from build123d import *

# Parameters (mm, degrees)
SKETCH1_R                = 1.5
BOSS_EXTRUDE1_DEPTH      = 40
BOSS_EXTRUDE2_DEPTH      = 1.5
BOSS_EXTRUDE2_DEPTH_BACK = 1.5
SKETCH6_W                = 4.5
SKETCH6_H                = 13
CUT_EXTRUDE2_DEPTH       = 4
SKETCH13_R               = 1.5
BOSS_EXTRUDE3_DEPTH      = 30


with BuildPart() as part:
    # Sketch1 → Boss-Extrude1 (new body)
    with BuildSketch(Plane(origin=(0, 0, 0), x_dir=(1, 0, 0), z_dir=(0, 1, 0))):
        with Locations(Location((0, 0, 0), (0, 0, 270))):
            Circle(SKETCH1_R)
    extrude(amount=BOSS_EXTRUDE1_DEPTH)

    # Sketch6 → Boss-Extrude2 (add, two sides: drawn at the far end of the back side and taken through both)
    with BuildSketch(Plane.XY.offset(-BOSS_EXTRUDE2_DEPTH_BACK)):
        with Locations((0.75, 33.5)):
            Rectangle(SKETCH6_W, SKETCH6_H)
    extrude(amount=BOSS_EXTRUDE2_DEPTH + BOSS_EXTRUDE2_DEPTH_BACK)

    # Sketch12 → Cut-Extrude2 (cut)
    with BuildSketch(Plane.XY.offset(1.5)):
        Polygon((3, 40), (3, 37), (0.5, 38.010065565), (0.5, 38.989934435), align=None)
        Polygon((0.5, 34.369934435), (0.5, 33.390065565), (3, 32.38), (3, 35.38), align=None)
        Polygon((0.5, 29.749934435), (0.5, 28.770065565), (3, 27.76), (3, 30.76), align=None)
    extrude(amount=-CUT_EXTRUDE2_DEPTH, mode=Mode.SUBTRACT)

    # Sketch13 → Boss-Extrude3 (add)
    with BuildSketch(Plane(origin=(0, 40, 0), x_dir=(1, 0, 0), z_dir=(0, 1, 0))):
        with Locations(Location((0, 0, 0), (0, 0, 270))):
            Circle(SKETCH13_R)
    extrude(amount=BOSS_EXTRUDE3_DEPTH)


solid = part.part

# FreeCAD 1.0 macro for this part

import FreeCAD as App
import Part
import Sketcher

V = App.Vector
Q = App.Units.Quantity

doc = App.newDocument("Part")
params = doc.addObject("Spreadsheet::Sheet", "Params")
for row, (alias, value) in enumerate([
    ("sketch1_diameter", "3 mm"),
    ("pad1_length", "40 mm"),
    ("sketch2_height", "13 mm"),
    ("sketch2_width", "4.5 mm"),
    ("pad2_length", "1.5 mm"),
    ("pad2_length2", "1.5 mm"),
    ("sketch3_height", "3 mm"),
    ("pocket1_length", "4 mm"),
    ("sketch4_diameter", "3 mm"),
    ("pad3_length", "30 mm"),
], start=1):
    params.set(f"A{row}", alias)
    params.set(f"B{row}", "=" + value)
    params.setAlias(f"B{row}", alias)

body = doc.addObject("PartDesign::Body", "Body")

sketch1 = body.newObject("Sketcher::SketchObject", "Sketch")
sketch1.AttachmentSupport = (doc.getObject("XZ_Plane"), [""])
sketch1.MapMode = "FlatFace"
sketch1.addGeometry(Part.Circle(V(0, 0, 0), V(0, 0, 1), 1.5), False)
sketch1.addConstraint(Sketcher.Constraint("Coincident", 0, 3, -1, 1))
sketch1.addConstraint(Sketcher.Constraint("Diameter", 0, 3.0))
sketch1.setExpression("Constraints[1]", "Params.sketch1_diameter")
pad1 = body.newObject("PartDesign::Pad", "Pad")
pad1.Profile = sketch1
pad1.setExpression("Length", "Params.pad1_length")
pad1.Reversed = True

sketch2 = body.newObject("Sketcher::SketchObject", "Sketch001")
sketch2.AttachmentSupport = (doc.getObject("XY_Plane"), [""])
sketch2.MapMode = "FlatFace"
sketch2.addGeometry(Part.LineSegment(V(-1.5, 40, 0), V(-1.5, 27, 0)), False)
sketch2.addGeometry(Part.LineSegment(V(-1.5, 27, 0), V(3, 27, 0)), False)
sketch2.addGeometry(Part.LineSegment(V(3, 27, 0), V(3, 40, 0)), False)
sketch2.addGeometry(Part.LineSegment(V(3, 40, 0), V(-1.5, 40, 0)), False)
sketch2.addConstraint(Sketcher.Constraint("Coincident", 0, 2, 1, 1))
sketch2.addConstraint(Sketcher.Constraint("Coincident", 1, 2, 2, 1))
sketch2.addConstraint(Sketcher.Constraint("Coincident", 2, 2, 3, 1))
sketch2.addConstraint(Sketcher.Constraint("Coincident", 3, 2, 0, 1))
sketch2.addConstraint(Sketcher.Constraint("Vertical", 0))
sketch2.addConstraint(Sketcher.Constraint("Horizontal", 1))
sketch2.addConstraint(Sketcher.Constraint("Vertical", 2))
sketch2.addConstraint(Sketcher.Constraint("Horizontal", 3))
sketch2.addConstraint(Sketcher.Constraint("DistanceY", 0, 2, 0, 1, 13.0))
sketch2.addConstraint(Sketcher.Constraint("DistanceX", 1, 1, 1, 2, 4.5))
sketch2.addConstraint(Sketcher.Constraint("DistanceY", -1, 1, 0, 2, 27.0))
sketch2.addConstraint(Sketcher.Constraint("DistanceX", -1, 1, 1, 2, 3.0))
sketch2.setExpression("Constraints[8]", "Params.sketch2_height")
sketch2.setExpression("Constraints[9]", "Params.sketch2_width")
pad2 = body.newObject("PartDesign::Pad", "Pad001")
pad2.Profile = sketch2
pad2.Type = "TwoLengths"
pad2.setExpression("Length", "Params.pad2_length")
pad2.setExpression("Length2", "Params.pad2_length2")

sketch3 = body.newObject("Sketcher::SketchObject", "Sketch002")
sketch3.AttachmentSupport = (doc.getObject("XY_Plane"), [""])
sketch3.MapMode = "FlatFace"
sketch3.AttachmentOffset = App.Placement(V(0, 0, 1.5), App.Rotation())
sketch3.addGeometry(Part.LineSegment(V(3, 37, 0), V(3, 40, 0)), False)
sketch3.addGeometry(Part.LineSegment(V(3, 40, 0), V(0.5, 39, 0)), False)
sketch3.addGeometry(Part.LineSegment(V(0.5, 39, 0), V(0.5, 38, 0)), False)
sketch3.addGeometry(Part.LineSegment(V(0.5, 38, 0), V(3, 37, 0)), False)
sketch3.addGeometry(Part.LineSegment(V(0.5, 34.4, 0), V(0.5, 33.4, 0)), False)
sketch3.addGeometry(Part.LineSegment(V(0.5, 33.4, 0), V(3, 32.4, 0)), False)
sketch3.addGeometry(Part.LineSegment(V(3, 32.4, 0), V(3, 35.4, 0)), False)
sketch3.addGeometry(Part.LineSegment(V(3, 35.4, 0), V(0.5, 34.4, 0)), False)
sketch3.addGeometry(Part.LineSegment(V(0.5, 29.7, 0), V(0.5, 28.8, 0)), False)
sketch3.addGeometry(Part.LineSegment(V(0.5, 28.8, 0), V(3, 27.8, 0)), False)
sketch3.addGeometry(Part.LineSegment(V(3, 27.8, 0), V(3, 30.8, 0)), False)
sketch3.addGeometry(Part.LineSegment(V(3, 30.8, 0), V(0.5, 29.7, 0)), False)
sketch3.addConstraint(Sketcher.Constraint("Coincident", 0, 2, 1, 1))
sketch3.addConstraint(Sketcher.Constraint("Coincident", 1, 2, 2, 1))
sketch3.addConstraint(Sketcher.Constraint("Coincident", 2, 2, 3, 1))
sketch3.addConstraint(Sketcher.Constraint("Coincident", 3, 2, 0, 1))
sketch3.addConstraint(Sketcher.Constraint("Coincident", 4, 2, 5, 1))
sketch3.addConstraint(Sketcher.Constraint("Coincident", 5, 2, 6, 1))
sketch3.addConstraint(Sketcher.Constraint("Coincident", 6, 2, 7, 1))
sketch3.addConstraint(Sketcher.Constraint("Coincident", 7, 2, 4, 1))
sketch3.addConstraint(Sketcher.Constraint("Coincident", 8, 2, 9, 1))
sketch3.addConstraint(Sketcher.Constraint("Coincident", 9, 2, 10, 1))
sketch3.addConstraint(Sketcher.Constraint("Coincident", 10, 2, 11, 1))
sketch3.addConstraint(Sketcher.Constraint("Coincident", 11, 2, 8, 1))
sketch3.addConstraint(Sketcher.Constraint("Vertical", 0))
sketch3.addConstraint(Sketcher.Constraint("Vertical", 2))
sketch3.addConstraint(Sketcher.Constraint("Vertical", 4))
sketch3.addConstraint(Sketcher.Constraint("Vertical", 6))
sketch3.addConstraint(Sketcher.Constraint("Vertical", 8))
sketch3.addConstraint(Sketcher.Constraint("Vertical", 10))
sketch3.addConstraint(Sketcher.Constraint("Parallel", 3, 5))
sketch3.addConstraint(Sketcher.Constraint("Parallel", 1, 7))
sketch3.addConstraint(Sketcher.Constraint("Parallel", 5, 9))
sketch3.addConstraint(Sketcher.Constraint("Parallel", 7, 11))
sketch3.addConstraint(Sketcher.Constraint("Vertical", 2, 2, 4, 2))
sketch3.addConstraint(Sketcher.Constraint("Vertical", 3, 2, 5, 2))
sketch3.addConstraint(Sketcher.Constraint("Vertical", 7, 2, 8, 2))
sketch3.addConstraint(Sketcher.Constraint("Vertical", 6, 2, 9, 2))
sketch3.addConstraint(Sketcher.Constraint("Equal", 2, 4))
sketch3.addConstraint(Sketcher.Constraint("Equal", 4, 8))
sketch3.addConstraint(Sketcher.Constraint("Equal", 1, 3))
sketch3.addConstraint(Sketcher.Constraint("DistanceY", 0, 1, 0, 2, 3.0))
sketch3.addConstraint(Sketcher.Constraint("Angle", 1, Q("-158 deg")))
sketch3.addConstraint(Sketcher.Constraint("DistanceX", -1, 1, 0, 2, 3.0))
sketch3.addConstraint(Sketcher.Constraint("DistanceY", -1, 1, 0, 2, 40.0))
sketch3.addConstraint(Sketcher.Constraint("DistanceX", -1, 1, 1, 2, 0.5))
sketch3.addConstraint(Sketcher.Constraint("DistanceY", -1, 1, 5, 2, 32.38))
sketch3.addConstraint(Sketcher.Constraint("DistanceY", -1, 1, 9, 2, 27.76))
sketch3.setExpression("Constraints[29]", "Params.sketch3_height")
pocket1 = body.newObject("PartDesign::Pocket", "Pocket")
pocket1.Profile = sketch3
pocket1.setExpression("Length", "Params.pocket1_length")

sketch4 = body.newObject("Sketcher::SketchObject", "Sketch003")
sketch4.AttachmentSupport = (doc.getObject("XZ_Plane"), [""])
sketch4.MapMode = "FlatFace"
sketch4.AttachmentOffset = App.Placement(V(0, 0, -40), App.Rotation())
sketch4.addGeometry(Part.Circle(V(0, 0, 0), V(0, 0, 1), 1.5), False)
sketch4.addConstraint(Sketcher.Constraint("Coincident", 0, 3, -1, 1))
sketch4.addConstraint(Sketcher.Constraint("Diameter", 0, 3.0))
sketch4.setExpression("Constraints[1]", "Params.sketch4_diameter")
pad3 = body.newObject("PartDesign::Pad", "Pad002")
pad3.Profile = sketch4
pad3.setExpression("Length", "Params.pad3_length")
pad3.Reversed = True

doc.recompute()
